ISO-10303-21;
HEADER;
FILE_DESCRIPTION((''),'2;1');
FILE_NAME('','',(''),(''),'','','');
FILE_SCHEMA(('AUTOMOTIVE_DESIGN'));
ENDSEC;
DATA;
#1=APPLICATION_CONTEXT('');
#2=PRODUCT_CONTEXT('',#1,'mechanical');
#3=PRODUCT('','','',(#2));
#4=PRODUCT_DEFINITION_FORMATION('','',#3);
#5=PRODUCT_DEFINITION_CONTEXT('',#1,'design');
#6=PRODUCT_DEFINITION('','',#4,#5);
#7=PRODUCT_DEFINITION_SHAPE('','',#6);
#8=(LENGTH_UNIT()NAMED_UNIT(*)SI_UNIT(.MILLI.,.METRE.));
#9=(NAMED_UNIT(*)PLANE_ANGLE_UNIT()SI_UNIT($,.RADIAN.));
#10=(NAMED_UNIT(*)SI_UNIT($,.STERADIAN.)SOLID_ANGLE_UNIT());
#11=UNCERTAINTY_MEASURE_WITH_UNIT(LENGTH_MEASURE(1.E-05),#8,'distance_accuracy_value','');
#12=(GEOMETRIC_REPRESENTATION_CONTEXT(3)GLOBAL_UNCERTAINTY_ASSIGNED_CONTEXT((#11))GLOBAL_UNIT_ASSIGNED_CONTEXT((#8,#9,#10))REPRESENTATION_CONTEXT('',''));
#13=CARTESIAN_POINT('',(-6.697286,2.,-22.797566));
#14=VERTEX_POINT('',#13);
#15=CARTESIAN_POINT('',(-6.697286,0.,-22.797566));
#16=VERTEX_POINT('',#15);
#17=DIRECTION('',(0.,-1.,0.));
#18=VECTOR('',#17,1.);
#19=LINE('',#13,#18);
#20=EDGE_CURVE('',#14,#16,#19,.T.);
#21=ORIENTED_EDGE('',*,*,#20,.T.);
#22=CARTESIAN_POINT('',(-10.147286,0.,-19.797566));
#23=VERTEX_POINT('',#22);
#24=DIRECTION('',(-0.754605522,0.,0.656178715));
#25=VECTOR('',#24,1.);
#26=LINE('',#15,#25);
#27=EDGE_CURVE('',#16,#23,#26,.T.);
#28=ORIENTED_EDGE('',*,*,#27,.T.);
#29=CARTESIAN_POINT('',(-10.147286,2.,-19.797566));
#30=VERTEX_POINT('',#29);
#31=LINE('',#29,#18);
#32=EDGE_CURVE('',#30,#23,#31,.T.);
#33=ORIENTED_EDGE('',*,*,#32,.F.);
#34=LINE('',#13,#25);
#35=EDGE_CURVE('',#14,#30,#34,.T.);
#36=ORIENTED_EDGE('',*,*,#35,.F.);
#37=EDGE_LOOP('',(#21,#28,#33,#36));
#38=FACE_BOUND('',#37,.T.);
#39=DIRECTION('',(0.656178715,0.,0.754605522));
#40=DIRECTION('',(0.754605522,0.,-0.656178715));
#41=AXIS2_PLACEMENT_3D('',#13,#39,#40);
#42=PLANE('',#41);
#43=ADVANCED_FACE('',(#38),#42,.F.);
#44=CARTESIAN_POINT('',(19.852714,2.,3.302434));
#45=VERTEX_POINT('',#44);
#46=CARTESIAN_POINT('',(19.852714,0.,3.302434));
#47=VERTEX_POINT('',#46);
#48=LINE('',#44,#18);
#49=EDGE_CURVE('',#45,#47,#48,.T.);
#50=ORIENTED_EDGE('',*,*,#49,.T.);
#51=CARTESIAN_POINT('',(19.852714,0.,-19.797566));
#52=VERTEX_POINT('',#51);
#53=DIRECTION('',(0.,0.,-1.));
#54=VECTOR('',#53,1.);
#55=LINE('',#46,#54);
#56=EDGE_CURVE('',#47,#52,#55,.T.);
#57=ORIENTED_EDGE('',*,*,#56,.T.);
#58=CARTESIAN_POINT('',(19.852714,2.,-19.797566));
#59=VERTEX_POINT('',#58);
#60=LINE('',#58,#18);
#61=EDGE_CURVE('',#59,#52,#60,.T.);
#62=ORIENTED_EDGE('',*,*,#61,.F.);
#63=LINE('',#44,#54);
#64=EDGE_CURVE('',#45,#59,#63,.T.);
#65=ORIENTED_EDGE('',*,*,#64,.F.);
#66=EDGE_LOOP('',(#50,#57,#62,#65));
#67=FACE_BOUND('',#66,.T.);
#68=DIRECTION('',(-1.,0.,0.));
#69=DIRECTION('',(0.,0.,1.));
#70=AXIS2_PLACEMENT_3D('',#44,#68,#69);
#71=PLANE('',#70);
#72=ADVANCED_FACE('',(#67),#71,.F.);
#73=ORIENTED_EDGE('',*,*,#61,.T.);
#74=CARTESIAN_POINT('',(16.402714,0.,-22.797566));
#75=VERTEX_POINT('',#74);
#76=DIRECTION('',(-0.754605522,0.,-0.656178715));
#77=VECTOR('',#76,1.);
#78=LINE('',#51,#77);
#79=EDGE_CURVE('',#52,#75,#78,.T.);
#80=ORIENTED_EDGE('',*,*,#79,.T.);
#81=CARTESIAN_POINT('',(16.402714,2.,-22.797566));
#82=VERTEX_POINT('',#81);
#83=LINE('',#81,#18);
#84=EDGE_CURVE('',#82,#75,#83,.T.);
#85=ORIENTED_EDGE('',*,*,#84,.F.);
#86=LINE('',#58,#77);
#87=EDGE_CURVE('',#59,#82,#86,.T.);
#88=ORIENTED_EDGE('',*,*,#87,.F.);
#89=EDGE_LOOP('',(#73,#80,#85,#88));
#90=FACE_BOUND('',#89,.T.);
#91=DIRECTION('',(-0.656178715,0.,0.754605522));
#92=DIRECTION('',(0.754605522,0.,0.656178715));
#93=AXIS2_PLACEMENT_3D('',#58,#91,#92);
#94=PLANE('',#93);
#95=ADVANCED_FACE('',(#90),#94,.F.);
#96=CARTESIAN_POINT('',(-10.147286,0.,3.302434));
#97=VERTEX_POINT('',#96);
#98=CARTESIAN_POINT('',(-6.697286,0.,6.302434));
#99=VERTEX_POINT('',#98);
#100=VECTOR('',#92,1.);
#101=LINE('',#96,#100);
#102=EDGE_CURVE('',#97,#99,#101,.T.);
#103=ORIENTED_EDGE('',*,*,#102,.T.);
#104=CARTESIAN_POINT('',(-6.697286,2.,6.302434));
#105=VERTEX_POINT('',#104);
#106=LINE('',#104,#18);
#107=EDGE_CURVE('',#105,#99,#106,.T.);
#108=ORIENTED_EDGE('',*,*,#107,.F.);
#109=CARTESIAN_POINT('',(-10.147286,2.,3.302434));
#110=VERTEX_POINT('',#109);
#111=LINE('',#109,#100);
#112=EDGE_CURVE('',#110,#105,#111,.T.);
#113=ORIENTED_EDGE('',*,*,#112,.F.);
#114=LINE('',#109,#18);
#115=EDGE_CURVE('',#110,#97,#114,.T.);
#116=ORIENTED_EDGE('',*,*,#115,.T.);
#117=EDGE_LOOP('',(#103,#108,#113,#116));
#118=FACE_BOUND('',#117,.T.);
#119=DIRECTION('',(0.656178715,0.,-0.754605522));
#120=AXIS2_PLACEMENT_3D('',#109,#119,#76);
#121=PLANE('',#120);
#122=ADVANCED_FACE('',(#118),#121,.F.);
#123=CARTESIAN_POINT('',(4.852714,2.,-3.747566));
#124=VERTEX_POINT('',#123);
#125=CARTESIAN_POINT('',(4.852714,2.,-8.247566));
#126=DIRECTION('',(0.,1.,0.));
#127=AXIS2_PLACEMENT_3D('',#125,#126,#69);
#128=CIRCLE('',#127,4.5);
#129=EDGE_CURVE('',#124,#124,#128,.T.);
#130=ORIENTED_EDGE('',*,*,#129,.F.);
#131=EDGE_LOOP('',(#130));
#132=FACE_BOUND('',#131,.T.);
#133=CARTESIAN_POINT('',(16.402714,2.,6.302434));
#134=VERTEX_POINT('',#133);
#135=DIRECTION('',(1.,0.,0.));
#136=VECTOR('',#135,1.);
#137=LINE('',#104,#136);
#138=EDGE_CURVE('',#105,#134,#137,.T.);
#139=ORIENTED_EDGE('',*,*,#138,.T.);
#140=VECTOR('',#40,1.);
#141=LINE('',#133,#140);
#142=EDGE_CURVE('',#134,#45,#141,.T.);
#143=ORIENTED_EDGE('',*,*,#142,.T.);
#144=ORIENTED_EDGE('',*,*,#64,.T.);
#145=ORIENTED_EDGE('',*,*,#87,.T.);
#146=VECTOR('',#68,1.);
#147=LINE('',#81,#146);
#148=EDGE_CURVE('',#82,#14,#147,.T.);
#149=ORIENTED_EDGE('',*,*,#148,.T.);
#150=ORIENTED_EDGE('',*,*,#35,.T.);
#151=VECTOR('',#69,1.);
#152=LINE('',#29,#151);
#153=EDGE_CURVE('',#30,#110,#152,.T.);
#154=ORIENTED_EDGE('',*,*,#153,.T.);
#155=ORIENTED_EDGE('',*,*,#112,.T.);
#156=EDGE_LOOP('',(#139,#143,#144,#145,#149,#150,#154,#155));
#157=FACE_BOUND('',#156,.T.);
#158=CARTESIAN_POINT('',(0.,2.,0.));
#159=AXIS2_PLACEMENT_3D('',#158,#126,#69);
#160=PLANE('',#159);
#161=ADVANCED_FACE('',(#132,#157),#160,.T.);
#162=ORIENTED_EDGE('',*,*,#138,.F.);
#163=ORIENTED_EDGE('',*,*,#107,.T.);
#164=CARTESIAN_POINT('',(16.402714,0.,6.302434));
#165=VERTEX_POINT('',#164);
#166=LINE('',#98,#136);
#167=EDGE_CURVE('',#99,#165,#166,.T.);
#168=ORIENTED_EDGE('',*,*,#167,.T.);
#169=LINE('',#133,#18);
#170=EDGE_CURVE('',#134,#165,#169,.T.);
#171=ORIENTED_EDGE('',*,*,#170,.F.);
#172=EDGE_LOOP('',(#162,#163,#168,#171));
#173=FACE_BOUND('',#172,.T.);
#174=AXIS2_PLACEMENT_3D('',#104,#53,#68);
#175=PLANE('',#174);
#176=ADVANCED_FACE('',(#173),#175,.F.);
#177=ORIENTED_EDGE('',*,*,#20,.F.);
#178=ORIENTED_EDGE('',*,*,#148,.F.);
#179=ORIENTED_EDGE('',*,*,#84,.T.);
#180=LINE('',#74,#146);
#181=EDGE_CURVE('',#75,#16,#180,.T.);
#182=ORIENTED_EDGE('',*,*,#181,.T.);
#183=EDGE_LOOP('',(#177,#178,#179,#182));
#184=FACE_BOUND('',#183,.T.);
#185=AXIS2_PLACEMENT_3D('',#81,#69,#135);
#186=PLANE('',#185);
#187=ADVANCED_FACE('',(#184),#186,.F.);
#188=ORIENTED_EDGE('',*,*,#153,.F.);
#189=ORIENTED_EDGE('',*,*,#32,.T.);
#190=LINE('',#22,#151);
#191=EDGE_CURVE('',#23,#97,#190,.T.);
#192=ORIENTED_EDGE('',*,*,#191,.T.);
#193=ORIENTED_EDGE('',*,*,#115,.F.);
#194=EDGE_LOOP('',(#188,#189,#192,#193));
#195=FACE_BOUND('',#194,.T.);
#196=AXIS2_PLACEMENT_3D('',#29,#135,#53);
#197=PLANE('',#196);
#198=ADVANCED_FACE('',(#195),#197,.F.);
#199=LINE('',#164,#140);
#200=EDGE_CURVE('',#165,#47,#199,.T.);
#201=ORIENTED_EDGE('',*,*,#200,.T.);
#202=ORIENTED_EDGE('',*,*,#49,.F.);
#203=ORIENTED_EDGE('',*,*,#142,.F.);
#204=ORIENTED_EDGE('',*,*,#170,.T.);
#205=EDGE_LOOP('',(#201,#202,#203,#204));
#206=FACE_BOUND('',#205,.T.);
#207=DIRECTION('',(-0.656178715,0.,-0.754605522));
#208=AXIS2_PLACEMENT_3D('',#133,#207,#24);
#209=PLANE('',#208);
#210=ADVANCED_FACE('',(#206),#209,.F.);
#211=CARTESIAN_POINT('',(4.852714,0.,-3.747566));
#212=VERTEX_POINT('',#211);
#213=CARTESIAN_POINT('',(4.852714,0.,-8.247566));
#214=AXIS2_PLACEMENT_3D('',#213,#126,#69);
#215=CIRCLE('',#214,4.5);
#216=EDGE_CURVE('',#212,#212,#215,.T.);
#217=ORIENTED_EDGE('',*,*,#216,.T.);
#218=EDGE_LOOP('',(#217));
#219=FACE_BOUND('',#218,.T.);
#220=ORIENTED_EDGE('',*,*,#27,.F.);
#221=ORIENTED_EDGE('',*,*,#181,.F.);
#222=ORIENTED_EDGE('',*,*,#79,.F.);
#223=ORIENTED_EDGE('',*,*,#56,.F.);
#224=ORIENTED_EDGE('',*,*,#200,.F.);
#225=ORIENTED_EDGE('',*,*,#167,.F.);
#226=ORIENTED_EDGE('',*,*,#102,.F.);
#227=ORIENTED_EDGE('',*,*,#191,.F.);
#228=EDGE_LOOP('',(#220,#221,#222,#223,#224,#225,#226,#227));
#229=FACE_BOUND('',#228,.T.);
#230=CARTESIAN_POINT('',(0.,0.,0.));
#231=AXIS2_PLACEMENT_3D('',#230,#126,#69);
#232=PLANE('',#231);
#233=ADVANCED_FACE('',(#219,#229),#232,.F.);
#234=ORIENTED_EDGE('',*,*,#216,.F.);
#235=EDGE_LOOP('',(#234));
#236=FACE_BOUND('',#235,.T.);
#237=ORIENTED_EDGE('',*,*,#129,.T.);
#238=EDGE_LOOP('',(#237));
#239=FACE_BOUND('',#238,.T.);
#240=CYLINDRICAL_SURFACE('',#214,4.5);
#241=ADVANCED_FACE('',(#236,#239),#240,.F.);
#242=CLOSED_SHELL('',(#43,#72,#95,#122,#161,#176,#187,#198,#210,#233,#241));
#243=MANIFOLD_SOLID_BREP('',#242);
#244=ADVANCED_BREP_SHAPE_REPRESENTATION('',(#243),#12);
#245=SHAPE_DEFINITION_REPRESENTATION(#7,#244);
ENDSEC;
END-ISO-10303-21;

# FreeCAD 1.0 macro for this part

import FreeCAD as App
import Part
import Sketcher
from FreeCAD import Vector
Q = App.Units.Quantity


def add_polygon(sketch, points):
    """Adds a closed chain of lines whose ends are joined by coincident constraints."""
    first, n = sketch.GeometryCount, len(points)
    for a, b in zip(points, points[1:] + points[:1]):
        sketch.addGeometry(Part.LineSegment(App.Vector(*a, 0), App.Vector(*b, 0)), False)
    for i in range(n):
        sketch.addConstraint(Sketcher.Constraint("Coincident", first + i, 2, first + (i + 1) % n, 1))

doc = App.newDocument("Part")
body = doc.addObject("PartDesign::Body", "Body")

sketch1 = body.newObject("Sketcher::SketchObject", "Sketch")
sketch1.AttachmentSupport = (doc.getObject("XZ_Plane"), [""])
sketch1.MapMode = "FlatFace"
add_polygon(sketch1, [(-10.1, -19.8), (-10.1, 3.3), (-6.7, 6.3), (16.4, 6.3), (19.9, 3.3), (19.9, -19.8), (16.4, -22.8), (-6.7, -22.8)])
sketch1.addConstraint([
    Sketcher.Constraint("Vertical", 0),
    Sketcher.Constraint("Horizontal", 2),
    Sketcher.Constraint("Vertical", 4),
    Sketcher.Constraint("Horizontal", 6),
    Sketcher.Constraint("Parallel", 1, 5),
    Sketcher.Constraint("Parallel", 3, 7),
    Sketcher.Constraint("Horizontal", 0, 2, 3, 2),
    Sketcher.Constraint("Horizontal", 4, 2, 7, 2),
    Sketcher.Constraint("Vertical", 2, 2, 5, 2),
    Sketcher.Constraint("Vertical", 1, 2, 6, 2),
    Sketcher.Constraint("Equal", 6, 0),
    Sketcher.Constraint("DistanceX", 2, 1, 2, 2, Q("23.1 mm")),
    Sketcher.Constraint("DistanceY", 0, 2, 1, 2, Q("3 mm")),
    Sketcher.Constraint("DistanceX", 0, 2, 3, 2, Q("30 mm")),
    Sketcher.Constraint("DistanceX", 0, 2, -1, 1, Q("10.147286 mm")),
    Sketcher.Constraint("DistanceY", -1, 1, 0, 2, Q("3.302434 mm")),
])
pad1 = body.newObject("PartDesign::Pad", "Pad")
pad1.Profile = sketch1
pad1.Length = 2
pad1.Reversed = True

sketch2 = body.newObject("Sketcher::SketchObject", "Sketch001")
sketch2.AttachmentSupport = (doc.getObject("XZ_Plane"), [""])
sketch2.MapMode = "FlatFace"
sketch2.AttachmentOffset = App.Placement(Vector(0, 0, -2), App.Rotation())
sketch2.addGeometry(Part.Circle(Vector(4.9, -8.2, 0), Vector(0, 0, 1), 4.5), False)
sketch2.addConstraint([
    Sketcher.Constraint("Diameter", 0, Q("9 mm")),
    Sketcher.Constraint("DistanceX", -1, 1, 0, 3, Q("4.852714 mm")),
    Sketcher.Constraint("DistanceY", 0, 3, -1, 1, Q("8.247566 mm")),
])
pocket1 = body.newObject("PartDesign::Pocket", "Pocket")
pocket1.Profile = sketch2
pocket1.Type = "ThroughAll"
pocket1.Reversed = True

doc.recompute()
